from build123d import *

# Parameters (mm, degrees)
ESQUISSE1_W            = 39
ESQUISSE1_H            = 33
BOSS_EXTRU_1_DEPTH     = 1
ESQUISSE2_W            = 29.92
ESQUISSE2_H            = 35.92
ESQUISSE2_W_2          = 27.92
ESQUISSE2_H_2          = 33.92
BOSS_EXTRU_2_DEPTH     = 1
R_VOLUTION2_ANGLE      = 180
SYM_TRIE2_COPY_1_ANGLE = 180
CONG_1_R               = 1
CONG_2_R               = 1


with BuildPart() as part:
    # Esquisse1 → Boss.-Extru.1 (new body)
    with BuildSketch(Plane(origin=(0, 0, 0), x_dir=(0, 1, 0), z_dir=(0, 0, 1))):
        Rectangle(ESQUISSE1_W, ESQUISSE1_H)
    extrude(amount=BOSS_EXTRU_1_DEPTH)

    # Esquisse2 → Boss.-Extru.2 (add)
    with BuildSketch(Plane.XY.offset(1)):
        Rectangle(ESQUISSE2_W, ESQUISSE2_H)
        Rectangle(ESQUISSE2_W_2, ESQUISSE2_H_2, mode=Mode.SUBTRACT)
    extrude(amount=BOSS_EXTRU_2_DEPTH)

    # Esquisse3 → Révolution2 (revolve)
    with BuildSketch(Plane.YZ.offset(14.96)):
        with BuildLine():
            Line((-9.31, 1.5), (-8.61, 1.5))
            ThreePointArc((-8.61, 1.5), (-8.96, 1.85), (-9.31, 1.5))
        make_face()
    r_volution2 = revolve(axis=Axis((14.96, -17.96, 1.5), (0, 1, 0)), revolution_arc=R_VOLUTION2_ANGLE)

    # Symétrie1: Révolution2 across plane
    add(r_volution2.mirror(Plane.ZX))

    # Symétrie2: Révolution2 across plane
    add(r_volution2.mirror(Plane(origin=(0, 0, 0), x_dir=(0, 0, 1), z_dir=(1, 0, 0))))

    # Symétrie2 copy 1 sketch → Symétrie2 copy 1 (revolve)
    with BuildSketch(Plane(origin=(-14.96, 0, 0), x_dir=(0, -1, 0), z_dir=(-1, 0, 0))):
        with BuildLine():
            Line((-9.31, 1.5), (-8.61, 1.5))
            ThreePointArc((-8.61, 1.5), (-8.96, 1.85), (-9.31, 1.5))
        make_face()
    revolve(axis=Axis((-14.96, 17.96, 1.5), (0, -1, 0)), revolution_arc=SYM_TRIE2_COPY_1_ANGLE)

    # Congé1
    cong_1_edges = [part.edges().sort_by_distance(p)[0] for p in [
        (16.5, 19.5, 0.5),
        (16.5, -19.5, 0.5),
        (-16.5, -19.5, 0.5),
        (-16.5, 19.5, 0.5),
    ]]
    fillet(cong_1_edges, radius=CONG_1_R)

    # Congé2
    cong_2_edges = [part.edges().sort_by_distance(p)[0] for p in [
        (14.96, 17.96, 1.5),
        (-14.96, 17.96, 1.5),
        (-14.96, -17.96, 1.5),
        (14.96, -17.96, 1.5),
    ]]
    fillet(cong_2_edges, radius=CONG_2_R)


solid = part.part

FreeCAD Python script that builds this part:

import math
import FreeCAD as App
import Part
import Sketcher

V = App.Vector
Q = App.Units.Quantity


def edges_at(feature, points):
    """Names of the edges that pass closest to the given points."""
    edges = feature.Shape.Edges
    near = lambda p: min(range(len(edges)), key=lambda i: edges[i].distToShape(Part.Vertex(*p))[0])
    return sorted({f"Edge{near(p) + 1}" for p in points})

doc = App.newDocument("Part")
params = doc.addObject("Spreadsheet::Sheet", "Params")
for row, (alias, value) in enumerate([
    ("sketch1_width", "33 mm"),
    ("sketch1_height", "39 mm"),
    ("pad1_length", "1 mm"),
    ("sketch2_width", "29.92 mm"),
    ("sketch2_height", "35.92 mm"),
    ("pad2_length", "1 mm"),
    ("sketch3_radius", "0.35 mm"),
    ("revolution_angle", "180 deg"),
    ("sketch4_radius", "0.35 mm"),
    ("revolution2_angle", "180 deg"),
    ("fillet_radius", "1 mm"),
    ("fillet2_radius", "1 mm"),
], start=1):
    params.set(f"A{row}", alias)
    params.set(f"B{row}", "=" + value)
    params.setAlias(f"B{row}", alias)

body = doc.addObject("PartDesign::Body", "Body")

sketch1 = body.newObject("Sketcher::SketchObject", "Sketch")
sketch1.AttachmentSupport = (doc.getObject("XY_Plane"), [""])
sketch1.MapMode = "FlatFace"
sketch1.addGeometry(Part.LineSegment(V(-16, -20, 0), V(16, -20, 0)), False)
sketch1.addGeometry(Part.LineSegment(V(16, -20, 0), V(16, 20, 0)), False)
sketch1.addGeometry(Part.LineSegment(V(16, 20, 0), V(-16, 20, 0)), False)
sketch1.addGeometry(Part.LineSegment(V(-16, 20, 0), V(-16, -20, 0)), False)
sketch1.addConstraint(Sketcher.Constraint("Coincident", 0, 2, 1, 1))
sketch1.addConstraint(Sketcher.Constraint("Coincident", 1, 2, 2, 1))
sketch1.addConstraint(Sketcher.Constraint("Coincident", 2, 2, 3, 1))
sketch1.addConstraint(Sketcher.Constraint("Coincident", 3, 2, 0, 1))
sketch1.addConstraint(Sketcher.Constraint("Horizontal", 0))
sketch1.addConstraint(Sketcher.Constraint("Vertical", 1))
sketch1.addConstraint(Sketcher.Constraint("Horizontal", 2))
sketch1.addConstraint(Sketcher.Constraint("Vertical", 3))
sketch1.addConstraint(Sketcher.Constraint("Symmetric", 0, 2, 2, 2, -1, 1))
sketch1.addConstraint(Sketcher.Constraint("DistanceX", 0, 1, 0, 2, Q("33 mm")))
sketch1.addConstraint(Sketcher.Constraint("DistanceY", 1, 1, 1, 2, Q("39 mm")))
sketch1.setExpression("Constraints[9]", "Params.sketch1_width")
sketch1.setExpression("Constraints[10]", "Params.sketch1_height")
pad1 = body.newObject("PartDesign::Pad", "Pad")
pad1.Profile = sketch1
pad1.setExpression("Length", "Params.pad1_length")

sketch2 = body.newObject("Sketcher::SketchObject", "Sketch001")
sketch2.AttachmentSupport = (doc.getObject("XY_Plane"), [""])
sketch2.MapMode = "FlatFace"
sketch2.AttachmentOffset = App.Placement(V(0, 0, 1), App.Rotation())
sketch2.addGeometry(Part.LineSegment(V(-15, 18, 0), V(-15, -18, 0)), False)
sketch2.addGeometry(Part.LineSegment(V(-15, -18, 0), V(15, -18, 0)), False)
sketch2.addGeometry(Part.LineSegment(V(15, -18, 0), V(15, 18, 0)), False)
sketch2.addGeometry(Part.LineSegment(V(15, 18, 0), V(-15, 18, 0)), False)
sketch2.addGeometry(Part.LineSegment(V(14, -17, 0), V(-14, -17, 0)), False)
sketch2.addGeometry(Part.LineSegment(V(-14, -17, 0), V(-14, 17, 0)), False)
sketch2.addGeometry(Part.LineSegment(V(-14, 17, 0), V(14, 17, 0)), False)
sketch2.addGeometry(Part.LineSegment(V(14, 17, 0), V(14, -17, 0)), False)
sketch2.addConstraint(Sketcher.Constraint("Coincident", 0, 2, 1, 1))
sketch2.addConstraint(Sketcher.Constraint("Coincident", 1, 2, 2, 1))
sketch2.addConstraint(Sketcher.Constraint("Coincident", 2, 2, 3, 1))
sketch2.addConstraint(Sketcher.Constraint("Coincident", 3, 2, 0, 1))
sketch2.addConstraint(Sketcher.Constraint("Coincident", 4, 2, 5, 1))
sketch2.addConstraint(Sketcher.Constraint("Coincident", 5, 2, 6, 1))
sketch2.addConstraint(Sketcher.Constraint("Coincident", 6, 2, 7, 1))
sketch2.addConstraint(Sketcher.Constraint("Coincident", 7, 2, 4, 1))
sketch2.addConstraint(Sketcher.Constraint("Vertical", 0))
sketch2.addConstraint(Sketcher.Constraint("Horizontal", 1))
sketch2.addConstraint(Sketcher.Constraint("Vertical", 2))
sketch2.addConstraint(Sketcher.Constraint("Horizontal", 3))
sketch2.addConstraint(Sketcher.Constraint("Horizontal", 4))
sketch2.addConstraint(Sketcher.Constraint("Vertical", 5))
sketch2.addConstraint(Sketcher.Constraint("Horizontal", 6))
sketch2.addConstraint(Sketcher.Constraint("Vertical", 7))
sketch2.addConstraint(Sketcher.Constraint("Symmetric", 0, 2, 2, 2, -1, 1))
sketch2.addConstraint(Sketcher.Constraint("Symmetric", 4, 2, 6, 2, -1, 1))
sketch2.addConstraint(Sketcher.Constraint("DistanceX", 0, 2, 4, 2, Q("1 mm")))
sketch2.addConstraint(Sketcher.Constraint("DistanceY", 0, 2, 4, 2, Q("1 mm")))
sketch2.addConstraint(Sketcher.Constraint("DistanceX", 1, 1, 1, 2, Q("29.92 mm")))
sketch2.addConstraint(Sketcher.Constraint("DistanceY", 0, 2, 0, 1, Q("35.92 mm")))
sketch2.setExpression("Constraints[20]", "Params.sketch2_width")
sketch2.setExpression("Constraints[21]", "Params.sketch2_height")
pad2 = body.newObject("PartDesign::Pad", "Pad001")
pad2.Profile = sketch2
pad2.setExpression("Length", "Params.pad2_length")

sketch3 = body.newObject("Sketcher::SketchObject", "Sketch002")
sketch3.AttachmentSupport = (doc.getObject("YZ_Plane"), [""])
sketch3.MapMode = "FlatFace"
sketch3.AttachmentOffset = App.Placement(V(0, 0, 14.96), App.Rotation())
sketch3.addGeometry(Part.LineSegment(V(-9.31, 1.5, 0), V(-8.61, 1.5, 0)), False)
sketch3.addGeometry(Part.ArcOfCircle(Part.Circle(V(-8.96, 1.5, 0), V(0, 0, 1), 0.35), math.radians(0), math.radians(180)), False)
sketch3.addGeometry(Part.LineSegment(V(-9.31, 1.5, 0), V(-8.61, 1.5, 0)), True)
sketch3.addConstraint(Sketcher.Constraint("Coincident", 0, 1, 1, 2))
sketch3.addConstraint(Sketcher.Constraint("Coincident", 1, 1, 0, 2))
sketch3.addConstraint(Sketcher.Constraint("Horizontal", 0))
sketch3.addConstraint(Sketcher.Constraint("Horizontal", 2))
sketch3.addConstraint(Sketcher.Constraint("Coincident", 2, 1, 0, 1))
sketch3.addConstraint(Sketcher.Constraint("Horizontal", 1, 3, 0, 1))
sketch3.addConstraint(Sketcher.Constraint("Equal", 0, 2))
sketch3.addConstraint(Sketcher.Constraint("Radius", 1, Q("0.35 mm")))
sketch3.addConstraint(Sketcher.Constraint("DistanceY", -1, 1, 1, 3, Q("1.5 mm")))
sketch3.addConstraint(Sketcher.Constraint("DistanceX", 1, 3, -1, 1, Q("8.96 mm")))
sketch3.setExpression("Constraints[7]", "Params.sketch3_radius")
revolution = body.newObject("PartDesign::Revolution", "Revolution")
revolution.Profile = sketch3
revolution.ReferenceAxis = (sketch3, ["Axis0"])
revolution.setExpression("Angle", "Params.revolution_angle")
doc.recompute()

mirrored = body.newObject("PartDesign::Mirrored", "Mirrored")
mirrored.Originals = [revolution]
mirrored.MirrorPlane = (doc.getObject("XZ_Plane"), [""])
body.Tip = mirrored
doc.recompute()

mirrored2 = body.newObject("PartDesign::Mirrored", "Mirrored001")
mirrored2.Originals = [revolution]
mirrored2.MirrorPlane = (doc.getObject("YZ_Plane"), [""])
body.Tip = mirrored2

sketch4 = body.newObject("Sketcher::SketchObject", "Sketch003")
sketch4.AttachmentSupport = (doc.getObject("YZ_Plane"), [""])
sketch4.MapMode = "FlatFace"
sketch4.AttachmentOffset = App.Placement(V(0, 0, -14.96), App.Rotation())
sketch4.addGeometry(Part.LineSegment(V(9.31, 1.5, 0), V(8.61, 1.5, 0)), False)
sketch4.addGeometry(Part.ArcOfCircle(Part.Circle(V(8.96, 1.5, 0), V(0, 0, 1), 0.35), math.radians(0), math.radians(180)), False)
sketch4.addGeometry(Part.LineSegment(V(9.31, 1.5, 0), V(8.61, 1.5, 0)), True)
sketch4.addConstraint(Sketcher.Constraint("Coincident", 0, 1, 1, 1))
sketch4.addConstraint(Sketcher.Constraint("Coincident", 1, 2, 0, 2))
sketch4.addConstraint(Sketcher.Constraint("Horizontal", 0))
sketch4.addConstraint(Sketcher.Constraint("Horizontal", 2))
sketch4.addConstraint(Sketcher.Constraint("Coincident", 2, 1, 0, 1))
sketch4.addConstraint(Sketcher.Constraint("Horizontal", 1, 3, 0, 1))
sketch4.addConstraint(Sketcher.Constraint("Equal", 0, 2))
sketch4.addConstraint(Sketcher.Constraint("Radius", 1, Q("0.35 mm")))
sketch4.addConstraint(Sketcher.Constraint("DistanceY", -1, 1, 1, 3, Q("1.5 mm")))
sketch4.addConstraint(Sketcher.Constraint("DistanceX", -1, 1, 1, 3, Q("8.96 mm")))
sketch4.setExpression("Constraints[7]", "Params.sketch4_radius")
revolution2 = body.newObject("PartDesign::Revolution", "Revolution001")
revolution2.Profile = sketch4
revolution2.ReferenceAxis = (sketch4, ["Axis0"])
revolution2.setExpression("Angle", "Params.revolution2_angle")
doc.recompute()

fillet = body.newObject("PartDesign::Fillet", "Fillet")
fillet.Base = (revolution2, edges_at(revolution2, [
    (16.5, 19.5, 0.5),
    (16.5, -19.5, 0.5),
    (-16.5, -19.5, 0.5),
    (-16.5, 19.5, 0.5),
]))
fillet.setExpression("Radius", "Params.fillet_radius")
doc.recompute()

fillet2 = body.newObject("PartDesign::Fillet", "Fillet001")
fillet2.Base = (fillet, edges_at(fillet, [
    (14.96, 17.96, 1.5),
    (-14.96, 17.96, 1.5),
    (-14.96, -17.96, 1.5),
    (14.96, -17.96, 1.5),
]))
fillet2.setExpression("Radius", "Params.fillet2_radius")

doc.recompute()
